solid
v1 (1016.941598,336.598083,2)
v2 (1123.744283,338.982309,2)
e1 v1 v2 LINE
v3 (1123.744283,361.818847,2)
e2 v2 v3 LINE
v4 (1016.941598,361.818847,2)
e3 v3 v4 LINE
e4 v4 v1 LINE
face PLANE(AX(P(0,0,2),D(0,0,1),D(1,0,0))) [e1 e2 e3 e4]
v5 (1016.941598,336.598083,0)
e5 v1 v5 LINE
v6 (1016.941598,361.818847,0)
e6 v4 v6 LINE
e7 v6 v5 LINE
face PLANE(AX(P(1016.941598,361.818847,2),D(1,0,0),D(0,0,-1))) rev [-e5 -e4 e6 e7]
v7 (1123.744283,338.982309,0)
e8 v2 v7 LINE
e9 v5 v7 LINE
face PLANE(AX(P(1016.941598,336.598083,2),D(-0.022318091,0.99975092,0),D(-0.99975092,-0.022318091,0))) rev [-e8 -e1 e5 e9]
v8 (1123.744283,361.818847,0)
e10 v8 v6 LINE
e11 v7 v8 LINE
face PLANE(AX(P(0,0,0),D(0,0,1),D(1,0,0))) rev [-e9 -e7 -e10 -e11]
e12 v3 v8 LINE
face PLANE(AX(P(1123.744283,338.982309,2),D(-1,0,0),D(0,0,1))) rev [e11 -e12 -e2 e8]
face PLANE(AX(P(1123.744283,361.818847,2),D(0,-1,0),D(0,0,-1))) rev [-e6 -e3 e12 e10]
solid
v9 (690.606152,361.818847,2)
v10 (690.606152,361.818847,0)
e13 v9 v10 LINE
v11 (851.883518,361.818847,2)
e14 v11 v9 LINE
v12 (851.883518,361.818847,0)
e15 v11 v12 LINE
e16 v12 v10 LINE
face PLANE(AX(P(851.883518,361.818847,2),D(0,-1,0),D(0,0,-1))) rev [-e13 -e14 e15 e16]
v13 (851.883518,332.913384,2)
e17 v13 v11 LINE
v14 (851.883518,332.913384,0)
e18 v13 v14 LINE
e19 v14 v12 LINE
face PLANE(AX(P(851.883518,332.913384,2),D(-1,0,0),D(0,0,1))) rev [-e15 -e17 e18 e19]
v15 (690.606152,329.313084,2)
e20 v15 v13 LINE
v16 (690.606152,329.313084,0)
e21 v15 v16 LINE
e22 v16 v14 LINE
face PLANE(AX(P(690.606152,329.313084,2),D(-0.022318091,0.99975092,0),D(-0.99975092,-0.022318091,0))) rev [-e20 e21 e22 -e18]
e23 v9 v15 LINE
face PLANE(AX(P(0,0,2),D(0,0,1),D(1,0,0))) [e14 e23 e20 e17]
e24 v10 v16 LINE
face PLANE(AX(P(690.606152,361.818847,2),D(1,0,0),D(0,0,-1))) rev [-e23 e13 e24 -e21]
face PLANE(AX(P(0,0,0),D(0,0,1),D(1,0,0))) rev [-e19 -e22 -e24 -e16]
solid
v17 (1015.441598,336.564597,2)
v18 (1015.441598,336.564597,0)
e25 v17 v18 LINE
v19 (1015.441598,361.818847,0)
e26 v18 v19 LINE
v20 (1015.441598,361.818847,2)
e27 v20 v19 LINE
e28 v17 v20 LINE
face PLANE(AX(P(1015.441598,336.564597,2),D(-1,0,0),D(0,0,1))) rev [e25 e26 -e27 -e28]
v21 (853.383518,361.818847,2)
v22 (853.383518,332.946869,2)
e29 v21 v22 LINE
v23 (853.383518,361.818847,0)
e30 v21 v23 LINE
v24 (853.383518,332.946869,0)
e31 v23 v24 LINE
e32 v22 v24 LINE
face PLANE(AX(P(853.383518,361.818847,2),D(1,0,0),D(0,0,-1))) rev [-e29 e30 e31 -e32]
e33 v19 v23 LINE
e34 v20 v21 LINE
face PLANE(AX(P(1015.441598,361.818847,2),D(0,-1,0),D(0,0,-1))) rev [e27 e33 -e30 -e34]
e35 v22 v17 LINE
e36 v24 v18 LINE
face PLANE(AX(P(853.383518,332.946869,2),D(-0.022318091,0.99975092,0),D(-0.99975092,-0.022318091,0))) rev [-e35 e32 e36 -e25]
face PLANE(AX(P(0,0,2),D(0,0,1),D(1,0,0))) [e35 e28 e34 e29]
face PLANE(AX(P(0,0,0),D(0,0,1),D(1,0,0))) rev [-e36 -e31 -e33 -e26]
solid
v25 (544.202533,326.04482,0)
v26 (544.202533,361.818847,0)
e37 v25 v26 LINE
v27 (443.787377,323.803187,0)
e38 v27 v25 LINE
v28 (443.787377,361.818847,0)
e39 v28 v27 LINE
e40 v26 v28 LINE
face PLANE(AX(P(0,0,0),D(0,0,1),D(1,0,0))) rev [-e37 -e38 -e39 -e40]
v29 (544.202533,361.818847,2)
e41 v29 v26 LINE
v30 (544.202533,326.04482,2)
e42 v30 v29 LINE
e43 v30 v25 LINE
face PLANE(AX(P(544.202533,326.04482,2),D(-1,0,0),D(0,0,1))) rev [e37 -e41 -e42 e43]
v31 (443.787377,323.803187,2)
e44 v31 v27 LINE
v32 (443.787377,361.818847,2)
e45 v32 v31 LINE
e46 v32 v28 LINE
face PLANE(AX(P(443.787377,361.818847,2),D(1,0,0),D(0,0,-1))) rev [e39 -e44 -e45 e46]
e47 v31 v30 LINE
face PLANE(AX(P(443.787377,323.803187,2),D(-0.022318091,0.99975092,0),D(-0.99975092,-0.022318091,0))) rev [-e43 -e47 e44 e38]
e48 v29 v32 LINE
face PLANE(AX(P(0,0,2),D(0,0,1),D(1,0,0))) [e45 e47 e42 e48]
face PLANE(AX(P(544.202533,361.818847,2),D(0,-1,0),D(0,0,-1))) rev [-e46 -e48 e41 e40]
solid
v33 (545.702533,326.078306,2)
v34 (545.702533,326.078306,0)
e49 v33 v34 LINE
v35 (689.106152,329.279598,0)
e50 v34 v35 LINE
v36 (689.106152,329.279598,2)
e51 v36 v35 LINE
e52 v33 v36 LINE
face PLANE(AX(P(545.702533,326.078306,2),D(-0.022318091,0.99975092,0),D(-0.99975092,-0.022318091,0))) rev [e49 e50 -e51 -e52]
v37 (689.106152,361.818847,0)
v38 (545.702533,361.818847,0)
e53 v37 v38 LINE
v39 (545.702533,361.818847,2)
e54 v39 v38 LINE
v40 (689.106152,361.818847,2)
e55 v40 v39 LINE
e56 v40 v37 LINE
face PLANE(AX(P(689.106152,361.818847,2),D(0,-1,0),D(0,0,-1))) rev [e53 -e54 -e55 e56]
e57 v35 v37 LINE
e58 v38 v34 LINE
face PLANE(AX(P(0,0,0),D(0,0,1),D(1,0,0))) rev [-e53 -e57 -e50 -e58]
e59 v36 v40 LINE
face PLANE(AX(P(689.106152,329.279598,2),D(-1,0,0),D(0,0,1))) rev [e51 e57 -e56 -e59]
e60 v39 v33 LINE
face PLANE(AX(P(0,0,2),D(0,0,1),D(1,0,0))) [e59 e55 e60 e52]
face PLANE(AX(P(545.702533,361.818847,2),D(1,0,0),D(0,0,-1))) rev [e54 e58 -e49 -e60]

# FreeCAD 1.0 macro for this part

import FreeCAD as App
import Part
import Sketcher
Q = App.Units.Quantity


def add_polygon(sketch, points):
    """Adds a closed chain of lines whose ends are joined by coincident constraints."""
    first, n = sketch.GeometryCount, len(points)
    for a, b in zip(points, points[1:] + points[:1]):
        sketch.addGeometry(Part.LineSegment(App.Vector(*a, 0), App.Vector(*b, 0)), False)
    for i in range(n):
        sketch.addConstraint(Sketcher.Constraint("Coincident", first + i, 2, first + (i + 1) % n, 1))

doc = App.newDocument("Part")
body = doc.addObject("PartDesign::Body", "Body")

# Sketch on XY plane
sketch1 = body.newObject("Sketcher::SketchObject", "Sketch")
sketch1.AttachmentSupport = (doc.getObject("XY_Plane"), [""])
sketch1.MapMode = "FlatFace"
add_polygon(sketch1, [(443.787377, 361.818847), (443.787377, 323.803187), (544.202533, 326.04482), (544.202533, 361.818847)])  # lines 0-3
sketch1.addConstraint([
    Sketcher.Constraint("Vertical", 0),
    Sketcher.Constraint("Vertical", 2),
    Sketcher.Constraint("Horizontal", 3),
    Sketcher.Constraint("DistanceY", 0, 2, 0, 1, Q("38.015659 mm")),
    Sketcher.Constraint("DistanceX", 3, 2, 3, 1, Q("100.415156 mm")),
    Sketcher.Constraint("DistanceY", 2, 1, 2, 2, Q("35.774026 mm")),
    Sketcher.Constraint("DistanceY", -1, 1, 1, 2, Q("326.04482 mm")),
    Sketcher.Constraint("DistanceX", -1, 1, 0, 2, Q("443.787377 mm")),
])
pad1 = body.newObject("PartDesign::Pad", "Pad")
pad1.Profile = sketch1
pad1.Length = 2
body2 = doc.addObject("PartDesign::Body", "Body001")

# Sketch on XY plane
sketch2 = body2.newObject("Sketcher::SketchObject", "Sketch001")
sketch2.AttachmentSupport = (doc.getObject("XY_Plane001"), [""])
sketch2.MapMode = "FlatFace"
add_polygon(sketch2, [(545.702533, 361.818847), (545.702533, 326.078306), (689.106152, 329.279598), (689.106152, 361.818847)])  # lines 0-3
sketch2.addConstraint([
    Sketcher.Constraint("Vertical", 0),
    Sketcher.Constraint("Vertical", 2),
    Sketcher.Constraint("Horizontal", 3),
    Sketcher.Constraint("DistanceX", 3, 2, 3, 1, Q("143.403619 mm")),
    Sketcher.Constraint("DistanceY", 0, 2, 0, 1, Q("35.740541 mm")),
    Sketcher.Constraint("DistanceY", 2, 1, 2, 2, Q("32.539248 mm")),
    Sketcher.Constraint("DistanceY", -1, 1, 1, 2, Q("329.279598 mm")),
    Sketcher.Constraint("DistanceX", -1, 1, 1, 2, Q("689.106152 mm")),
])
pad2 = body2.newObject("PartDesign::Pad", "Pad001")
pad2.Profile = sketch2
pad2.Length = 2
body3 = doc.addObject("PartDesign::Body", "Body002")

# Sketch on XY plane
sketch3 = body3.newObject("Sketcher::SketchObject", "Sketch002")
sketch3.AttachmentSupport = (doc.getObject("XY_Plane002"), [""])
sketch3.MapMode = "FlatFace"
add_polygon(sketch3, [(690.606152, 361.818847), (690.606152, 329.313084), (851.883518, 332.913384), (851.883518, 361.818847)])  # lines 0-3
sketch3.addConstraint([
    Sketcher.Constraint("Vertical", 0),
    Sketcher.Constraint("Vertical", 2),
    Sketcher.Constraint("Horizontal", 3),
    Sketcher.Constraint("DistanceY", 0, 2, 1, 2, Q("3.6003 mm")),
    Sketcher.Constraint("DistanceX", 3, 2, 3, 1, Q("161.277366 mm")),
    Sketcher.Constraint("DistanceY", 0, 2, 0, 1, Q("32.505763 mm")),
    Sketcher.Constraint("DistanceX", -1, 1, 0, 2, Q("690.606152 mm")),
    Sketcher.Constraint("DistanceY", -1, 1, 0, 2, Q("329.313084 mm")),
])
pad3 = body3.newObject("PartDesign::Pad", "Pad002")
pad3.Profile = sketch3
pad3.Length = 2
body4 = doc.addObject("PartDesign::Body", "Body003")

# Sketch on XY plane
sketch4 = body4.newObject("Sketcher::SketchObject", "Sketch003")
sketch4.AttachmentSupport = (doc.getObject("XY_Plane003"), [""])
sketch4.MapMode = "FlatFace"
add_polygon(sketch4, [(853.383518, 361.818847), (853.383518, 332.946869), (1015.441598, 336.564597), (1015.441598, 361.818847)])  # lines 0-3
sketch4.addConstraint([
    Sketcher.Constraint("Vertical", 0),
    Sketcher.Constraint("Vertical", 2),
    Sketcher.Constraint("Horizontal", 3),
    Sketcher.Constraint("DistanceX", 3, 2, 3, 1, Q("162.05808 mm")),
    Sketcher.Constraint("DistanceY", 2, 1, 2, 2, Q("25.25425 mm")),
    Sketcher.Constraint("DistanceY", 0, 2, 0, 1, Q("28.871978 mm")),
    Sketcher.Constraint("DistanceY", -1, 1, 0, 2, Q("332.946869 mm")),
    Sketcher.Constraint("DistanceX", -1, 1, 0, 2, Q("853.383518 mm")),
])
pad4 = body4.newObject("PartDesign::Pad", "Pad003")
pad4.Profile = sketch4
pad4.Length = 2
body5 = doc.addObject("PartDesign::Body", "Body004")

# Sketch on XY plane
sketch5 = body5.newObject("Sketcher::SketchObject", "Sketch004")
sketch5.AttachmentSupport = (doc.getObject("XY_Plane004"), [""])
sketch5.MapMode = "FlatFace"
add_polygon(sketch5, [(1016.941598, 361.818847), (1016.941598, 336.598083), (1123.744283, 338.982309), (1123.744283, 361.818847)])  # lines 0-3
sketch5.addConstraint([
    Sketcher.Constraint("Vertical", 0),
    Sketcher.Constraint("Vertical", 2),
    Sketcher.Constraint("Horizontal", 3),
    Sketcher.Constraint("DistanceY", 2, 1, 2, 2, Q("22.836538 mm")),
    Sketcher.Constraint("DistanceX", 3, 2, 3, 1, Q("106.802685 mm")),
    Sketcher.Constraint("DistanceY", 0, 2, 0, 1, Q("25.220764 mm")),
    Sketcher.Constraint("DistanceY", -1, 1, 1, 2, Q("338.982309 mm")),
    Sketcher.Constraint("DistanceX", -1, 1, 0, 2, Q("1016.941598 mm")),
])
pad5 = body5.newObject("PartDesign::Pad", "Pad004")
pad5.Profile = sketch5
pad5.Length = 2

doc.recompute()
